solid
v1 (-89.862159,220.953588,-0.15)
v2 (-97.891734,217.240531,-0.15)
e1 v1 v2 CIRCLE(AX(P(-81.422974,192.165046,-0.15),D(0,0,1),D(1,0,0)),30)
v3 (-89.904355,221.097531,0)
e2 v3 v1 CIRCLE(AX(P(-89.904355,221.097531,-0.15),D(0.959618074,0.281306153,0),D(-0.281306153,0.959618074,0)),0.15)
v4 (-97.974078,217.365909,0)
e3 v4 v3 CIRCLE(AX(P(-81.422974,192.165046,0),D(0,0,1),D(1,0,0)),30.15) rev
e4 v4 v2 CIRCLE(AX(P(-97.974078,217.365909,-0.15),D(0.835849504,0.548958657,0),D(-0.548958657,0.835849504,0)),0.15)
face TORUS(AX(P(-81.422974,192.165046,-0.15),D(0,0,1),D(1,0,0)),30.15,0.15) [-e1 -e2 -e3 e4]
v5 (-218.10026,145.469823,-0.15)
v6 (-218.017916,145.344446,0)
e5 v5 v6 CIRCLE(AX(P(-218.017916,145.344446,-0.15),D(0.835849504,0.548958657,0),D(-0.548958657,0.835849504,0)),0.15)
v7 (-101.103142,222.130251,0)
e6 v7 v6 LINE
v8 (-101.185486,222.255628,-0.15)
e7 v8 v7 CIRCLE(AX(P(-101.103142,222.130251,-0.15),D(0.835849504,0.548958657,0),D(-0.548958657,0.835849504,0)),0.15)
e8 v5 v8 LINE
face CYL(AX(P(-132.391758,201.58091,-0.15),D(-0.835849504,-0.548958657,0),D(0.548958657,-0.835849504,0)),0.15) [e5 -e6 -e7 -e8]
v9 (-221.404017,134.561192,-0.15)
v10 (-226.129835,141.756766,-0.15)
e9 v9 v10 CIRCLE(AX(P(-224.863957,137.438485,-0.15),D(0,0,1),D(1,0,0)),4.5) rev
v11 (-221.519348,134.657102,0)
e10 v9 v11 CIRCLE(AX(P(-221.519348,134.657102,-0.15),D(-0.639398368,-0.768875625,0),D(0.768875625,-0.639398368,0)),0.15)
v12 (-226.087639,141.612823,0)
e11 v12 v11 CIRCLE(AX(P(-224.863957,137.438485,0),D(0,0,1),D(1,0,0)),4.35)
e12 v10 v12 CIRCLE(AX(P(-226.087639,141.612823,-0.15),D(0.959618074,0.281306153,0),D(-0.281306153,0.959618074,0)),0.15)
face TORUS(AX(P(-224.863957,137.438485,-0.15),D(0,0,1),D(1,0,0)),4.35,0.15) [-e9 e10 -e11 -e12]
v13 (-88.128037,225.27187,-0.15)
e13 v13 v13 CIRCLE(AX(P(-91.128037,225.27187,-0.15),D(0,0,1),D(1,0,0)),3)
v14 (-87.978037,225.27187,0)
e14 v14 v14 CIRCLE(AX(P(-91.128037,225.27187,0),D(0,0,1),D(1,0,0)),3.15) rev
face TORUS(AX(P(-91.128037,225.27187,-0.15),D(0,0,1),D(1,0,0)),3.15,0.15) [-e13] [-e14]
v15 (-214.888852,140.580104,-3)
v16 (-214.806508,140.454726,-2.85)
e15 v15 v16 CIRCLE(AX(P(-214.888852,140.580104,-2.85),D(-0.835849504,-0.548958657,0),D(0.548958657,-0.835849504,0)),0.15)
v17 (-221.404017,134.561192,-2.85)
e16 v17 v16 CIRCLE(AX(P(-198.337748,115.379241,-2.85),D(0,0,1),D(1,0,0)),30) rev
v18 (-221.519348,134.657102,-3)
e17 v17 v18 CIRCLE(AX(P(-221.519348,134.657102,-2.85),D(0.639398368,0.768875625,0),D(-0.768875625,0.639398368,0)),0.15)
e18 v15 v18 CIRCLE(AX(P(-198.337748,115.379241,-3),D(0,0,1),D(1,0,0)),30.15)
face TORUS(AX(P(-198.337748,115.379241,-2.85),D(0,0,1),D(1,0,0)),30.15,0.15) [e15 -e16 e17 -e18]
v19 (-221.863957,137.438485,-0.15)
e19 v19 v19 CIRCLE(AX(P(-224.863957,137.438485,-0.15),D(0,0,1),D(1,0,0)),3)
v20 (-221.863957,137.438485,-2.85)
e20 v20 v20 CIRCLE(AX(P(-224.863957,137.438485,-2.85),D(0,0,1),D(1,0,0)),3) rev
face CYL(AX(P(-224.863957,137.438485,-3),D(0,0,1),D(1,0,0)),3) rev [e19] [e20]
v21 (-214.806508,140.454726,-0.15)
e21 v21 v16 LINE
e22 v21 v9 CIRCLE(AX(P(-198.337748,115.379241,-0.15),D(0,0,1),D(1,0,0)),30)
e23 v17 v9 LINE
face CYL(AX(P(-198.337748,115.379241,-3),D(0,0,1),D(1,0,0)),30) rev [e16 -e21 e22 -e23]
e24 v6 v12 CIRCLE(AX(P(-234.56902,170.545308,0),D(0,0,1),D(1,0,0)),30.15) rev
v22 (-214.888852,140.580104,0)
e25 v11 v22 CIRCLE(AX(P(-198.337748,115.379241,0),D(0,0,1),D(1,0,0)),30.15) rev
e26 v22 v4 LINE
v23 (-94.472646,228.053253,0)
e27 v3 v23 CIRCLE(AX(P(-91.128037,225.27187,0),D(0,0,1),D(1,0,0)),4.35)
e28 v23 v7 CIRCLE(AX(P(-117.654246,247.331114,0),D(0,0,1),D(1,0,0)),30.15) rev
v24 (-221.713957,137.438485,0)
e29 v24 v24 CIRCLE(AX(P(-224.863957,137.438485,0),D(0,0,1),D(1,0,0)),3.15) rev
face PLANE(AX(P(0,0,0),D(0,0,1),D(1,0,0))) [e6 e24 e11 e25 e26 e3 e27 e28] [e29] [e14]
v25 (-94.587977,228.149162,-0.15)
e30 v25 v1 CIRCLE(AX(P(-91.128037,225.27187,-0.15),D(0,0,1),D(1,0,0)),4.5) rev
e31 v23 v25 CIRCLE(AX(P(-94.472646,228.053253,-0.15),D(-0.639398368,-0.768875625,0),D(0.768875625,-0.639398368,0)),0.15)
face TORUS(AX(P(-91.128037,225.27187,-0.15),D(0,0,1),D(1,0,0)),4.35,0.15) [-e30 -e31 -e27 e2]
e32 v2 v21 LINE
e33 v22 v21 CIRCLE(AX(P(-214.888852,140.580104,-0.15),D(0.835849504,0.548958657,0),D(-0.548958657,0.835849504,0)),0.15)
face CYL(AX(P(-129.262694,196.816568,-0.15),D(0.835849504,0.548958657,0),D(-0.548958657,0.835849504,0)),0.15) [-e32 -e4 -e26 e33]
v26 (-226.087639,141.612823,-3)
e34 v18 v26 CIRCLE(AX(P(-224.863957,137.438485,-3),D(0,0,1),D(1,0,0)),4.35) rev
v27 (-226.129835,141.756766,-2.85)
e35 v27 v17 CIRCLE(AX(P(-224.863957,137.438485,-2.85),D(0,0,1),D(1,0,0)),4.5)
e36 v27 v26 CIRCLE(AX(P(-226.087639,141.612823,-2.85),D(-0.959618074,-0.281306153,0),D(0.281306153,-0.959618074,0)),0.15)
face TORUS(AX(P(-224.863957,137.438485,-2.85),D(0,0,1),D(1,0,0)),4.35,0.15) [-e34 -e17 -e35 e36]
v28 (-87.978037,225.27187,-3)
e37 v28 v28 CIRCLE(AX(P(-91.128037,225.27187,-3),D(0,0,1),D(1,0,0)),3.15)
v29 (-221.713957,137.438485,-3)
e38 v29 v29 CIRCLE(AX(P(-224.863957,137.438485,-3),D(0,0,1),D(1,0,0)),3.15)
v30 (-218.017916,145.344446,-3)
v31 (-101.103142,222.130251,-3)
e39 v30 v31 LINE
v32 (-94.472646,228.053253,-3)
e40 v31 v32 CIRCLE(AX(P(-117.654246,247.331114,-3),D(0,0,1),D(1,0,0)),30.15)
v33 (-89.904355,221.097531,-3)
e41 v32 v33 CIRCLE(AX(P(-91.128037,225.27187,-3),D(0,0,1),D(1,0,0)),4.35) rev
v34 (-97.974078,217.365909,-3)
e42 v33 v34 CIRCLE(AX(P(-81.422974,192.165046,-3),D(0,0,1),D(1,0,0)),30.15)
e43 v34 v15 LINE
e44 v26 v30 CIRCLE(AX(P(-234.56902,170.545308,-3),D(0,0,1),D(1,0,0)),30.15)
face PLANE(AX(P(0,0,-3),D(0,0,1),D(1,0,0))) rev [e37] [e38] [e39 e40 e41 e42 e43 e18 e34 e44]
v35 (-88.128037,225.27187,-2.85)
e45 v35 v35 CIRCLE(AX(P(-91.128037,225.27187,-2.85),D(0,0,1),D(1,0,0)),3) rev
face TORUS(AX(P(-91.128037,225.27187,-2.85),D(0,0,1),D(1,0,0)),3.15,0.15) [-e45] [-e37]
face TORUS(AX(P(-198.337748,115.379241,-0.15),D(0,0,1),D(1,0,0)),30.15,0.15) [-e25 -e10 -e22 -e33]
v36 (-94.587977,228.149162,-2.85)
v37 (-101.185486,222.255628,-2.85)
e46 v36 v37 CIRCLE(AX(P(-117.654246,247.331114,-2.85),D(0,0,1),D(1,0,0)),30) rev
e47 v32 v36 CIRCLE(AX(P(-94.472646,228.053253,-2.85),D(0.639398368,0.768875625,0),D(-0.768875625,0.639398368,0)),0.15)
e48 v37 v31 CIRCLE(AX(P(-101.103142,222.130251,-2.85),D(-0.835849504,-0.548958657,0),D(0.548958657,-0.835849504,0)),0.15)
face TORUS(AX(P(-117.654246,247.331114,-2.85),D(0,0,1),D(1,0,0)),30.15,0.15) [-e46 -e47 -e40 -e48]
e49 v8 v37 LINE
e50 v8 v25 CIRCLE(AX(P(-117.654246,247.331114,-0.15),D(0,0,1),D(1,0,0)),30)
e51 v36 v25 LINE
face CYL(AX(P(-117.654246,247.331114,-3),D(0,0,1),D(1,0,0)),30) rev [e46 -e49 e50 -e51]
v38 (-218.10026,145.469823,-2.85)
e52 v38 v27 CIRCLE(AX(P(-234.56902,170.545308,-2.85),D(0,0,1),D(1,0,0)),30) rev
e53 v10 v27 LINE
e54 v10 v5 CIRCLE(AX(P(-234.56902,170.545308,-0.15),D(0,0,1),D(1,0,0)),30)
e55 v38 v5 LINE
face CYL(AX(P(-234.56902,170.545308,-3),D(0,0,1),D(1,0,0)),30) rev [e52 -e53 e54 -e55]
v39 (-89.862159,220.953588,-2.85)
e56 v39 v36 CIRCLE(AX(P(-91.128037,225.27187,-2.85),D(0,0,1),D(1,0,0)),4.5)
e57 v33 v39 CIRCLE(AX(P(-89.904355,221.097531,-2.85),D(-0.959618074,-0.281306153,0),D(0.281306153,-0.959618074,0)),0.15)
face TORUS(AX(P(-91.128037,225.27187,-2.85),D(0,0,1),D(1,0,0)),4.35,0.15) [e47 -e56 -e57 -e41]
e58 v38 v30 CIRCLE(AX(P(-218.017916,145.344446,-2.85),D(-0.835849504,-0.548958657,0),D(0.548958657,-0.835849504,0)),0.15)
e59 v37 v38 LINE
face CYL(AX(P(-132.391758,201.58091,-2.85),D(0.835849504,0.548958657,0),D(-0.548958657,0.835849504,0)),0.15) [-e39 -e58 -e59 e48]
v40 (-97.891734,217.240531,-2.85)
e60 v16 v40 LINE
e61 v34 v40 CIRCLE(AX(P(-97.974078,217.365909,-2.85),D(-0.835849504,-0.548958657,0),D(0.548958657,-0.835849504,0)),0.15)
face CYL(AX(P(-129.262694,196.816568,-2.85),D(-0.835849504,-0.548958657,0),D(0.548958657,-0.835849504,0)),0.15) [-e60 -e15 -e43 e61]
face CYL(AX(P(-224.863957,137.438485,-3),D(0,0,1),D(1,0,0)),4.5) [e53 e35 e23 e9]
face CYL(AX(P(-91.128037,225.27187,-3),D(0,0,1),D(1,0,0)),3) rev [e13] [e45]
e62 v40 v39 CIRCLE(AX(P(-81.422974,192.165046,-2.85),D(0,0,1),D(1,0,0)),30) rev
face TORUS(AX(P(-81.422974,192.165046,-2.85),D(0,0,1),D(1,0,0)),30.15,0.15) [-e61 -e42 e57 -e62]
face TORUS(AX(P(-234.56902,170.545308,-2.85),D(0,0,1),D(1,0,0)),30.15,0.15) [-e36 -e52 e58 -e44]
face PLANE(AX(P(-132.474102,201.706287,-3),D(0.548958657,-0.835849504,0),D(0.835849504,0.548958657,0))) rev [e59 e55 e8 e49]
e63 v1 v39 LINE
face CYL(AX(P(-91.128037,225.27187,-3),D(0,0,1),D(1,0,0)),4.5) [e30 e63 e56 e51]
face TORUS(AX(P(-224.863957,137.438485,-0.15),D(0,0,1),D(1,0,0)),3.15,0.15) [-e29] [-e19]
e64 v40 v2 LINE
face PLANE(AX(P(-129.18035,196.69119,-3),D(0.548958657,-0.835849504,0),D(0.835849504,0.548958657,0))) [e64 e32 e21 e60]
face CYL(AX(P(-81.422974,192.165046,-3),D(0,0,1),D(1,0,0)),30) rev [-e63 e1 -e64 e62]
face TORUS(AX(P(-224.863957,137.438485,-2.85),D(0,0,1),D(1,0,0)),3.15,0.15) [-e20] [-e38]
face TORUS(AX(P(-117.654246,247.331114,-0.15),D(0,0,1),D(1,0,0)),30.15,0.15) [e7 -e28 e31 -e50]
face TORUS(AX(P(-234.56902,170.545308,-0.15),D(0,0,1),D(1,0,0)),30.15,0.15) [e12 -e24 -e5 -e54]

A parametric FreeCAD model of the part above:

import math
import FreeCAD as App
import Part
import Sketcher

V = App.Vector


def edges_at(feature, points):
    """Names of the edges that pass closest to the given points."""
    edges = feature.Shape.Edges
    near = lambda p: min(range(len(edges)), key=lambda i: edges[i].distToShape(Part.Vertex(*p))[0])
    return sorted({f"Edge{near(p) + 1}" for p in points})

doc = App.newDocument("Part")
body = doc.addObject("PartDesign::Body", "Body")

# Sketch on XY plane
sketch1 = body.newObject("Sketcher::SketchObject", "Sketch")
sketch1.AttachmentSupport = (doc.getObject("XY_Plane"), [""])
sketch1.MapMode = "FlatFace"
sketch1.addGeometry([
    Part.ArcOfCircle(Part.Circle(V(-91.1, 225.3, 0), V(0, 0, 1), 4.5), math.radians(0), math.radians(171)),  # 0
    Part.LineSegment(V(-95.6, 225.9, 0), V(-223.7, 141.8, 0)),  # 1
    Part.ArcOfCircle(Part.Circle(V(-224.9, 137.4, 0), V(0, 0, 1), 4.5), math.radians(75), math.radians(351)),  # 2
    Part.LineSegment(V(-220.4, 136.8, 0), V(-92.3, 220.9, 0)),  # 3
    Part.ArcOfCircle(Part.Circle(V(-91.1, 225.3, 0), V(0, 0, 1), 4.5), math.radians(-105), math.radians(0)),  # 4
    Part.Circle(V(-91.1, 225.3, 0), V(0, 0, 1), 3),  # 5
    Part.ArcOfCircle(Part.Circle(V(-224.9, 137.4, 0), V(0, 0, 1), 3), math.radians(123), math.radians(303)),  # 6
    Part.ArcOfCircle(Part.Circle(V(-224.9, 137.4, 0), V(0, 0, 1), 3), math.radians(-57), math.radians(123)),  # 7
], False)
sketch1.addConstraint([
    Sketcher.Constraint("Coincident", 0, 2, 1, 1),
    Sketcher.Constraint("Coincident", 1, 2, 2, 1),
    Sketcher.Constraint("Coincident", 2, 2, 3, 1),
    Sketcher.Constraint("Coincident", 3, 2, 4, 1),
    Sketcher.Constraint("Tangent", 4, 2, 0, 1),
    Sketcher.Constraint("Tangent", 6, 1, 7, 2),
    Sketcher.Constraint("Coincident", 7, 1, 6, 2),
    Sketcher.Constraint("Coincident", 5, 3, 0, 3),
    Sketcher.Constraint("Coincident", 6, 3, 2, 3),
    Sketcher.Constraint("Equal", 0, 2),
    Sketcher.Constraint("Equal", 2, 4),
    Sketcher.Constraint("Equal", 5, 6),
    Sketcher.Constraint("Parallel", 1, 3),
    Sketcher.Constraint("Horizontal", 5, 3, 4, 2),
    Sketcher.Constraint("Equal", 1, 3),
    Sketcher.Constraint("Diameter", 5, 6.0),
    Sketcher.Constraint("Radius", 0, 4.5),
    Sketcher.Constraint("DistanceY", -1, 1, 2, 2, 136.7722),
    Sketcher.Constraint("DistanceX", 0, 2, 4, 3, 4.4504),
    Sketcher.Constraint("DistanceY", -1, 1, 0, 3, 225.27187),
    Sketcher.Constraint("DistanceX", 1, 2, -1, 1, 223.707309),
    Sketcher.Constraint("DistanceY", -1, 1, 3, 2, 220.923058),
    Sketcher.Constraint("DistanceX", 7, 1, -1, 1, 223.217081),
    Sketcher.Constraint("DistanceX", 2, 3, 0, 3, 133.735921),
    Sketcher.Constraint("DistanceY", 2, 3, 6, 1, 2.507549),
])
pad1 = body.newObject("PartDesign::Pad", "Pad")
pad1.Profile = sketch1
pad1.Length = 3
pad1.Reversed = True
doc.recompute()

fillet = body.newObject("PartDesign::Fillet", "Fillet")
fillet.Base = (pad1, edges_at(pad1, [
    (-95.578, 225.938, -1.5),
    (-92.285, 220.923, -1.5),
    (-220.414, 136.772, -1.5),
    (-223.707, 141.787, -1.5),
]))
fillet.Radius = 30
doc.recompute()

fillet2 = body.newObject("PartDesign::Fillet", "Fillet001")
fillet2.Base = (fillet, edges_at(fillet, [
    (-228.625, 134.968, 0),
    (-228.625, 134.968, -3),
    (-156.349, 178.848, 0),
    (-156.349, 178.848, -3),
    (-92.775, 227.779, -3),
    (-89.598, 229.504, 0),
    (-89.598, 229.504, -3),
    (-159.643, 183.863, 0),
    (-159.643, 183.863, -3),
    (-218.324, 137.752, 0),
    (-218.324, 137.752, -3),
    (-94.015, 219.395, 0),
    (-227.372, 135.792, -3),
    (-94.015, 219.395, -3),
    (-221.977, 143.316, 0),
    (-221.977, 143.316, -3),
    (-97.668, 224.958, 0),
    (-97.668, 224.958, -3),
    (-227.372, 135.792, 0),
    (-92.775, 227.779, 0),
]))
fillet2.Radius = 0.15

doc.recompute()
